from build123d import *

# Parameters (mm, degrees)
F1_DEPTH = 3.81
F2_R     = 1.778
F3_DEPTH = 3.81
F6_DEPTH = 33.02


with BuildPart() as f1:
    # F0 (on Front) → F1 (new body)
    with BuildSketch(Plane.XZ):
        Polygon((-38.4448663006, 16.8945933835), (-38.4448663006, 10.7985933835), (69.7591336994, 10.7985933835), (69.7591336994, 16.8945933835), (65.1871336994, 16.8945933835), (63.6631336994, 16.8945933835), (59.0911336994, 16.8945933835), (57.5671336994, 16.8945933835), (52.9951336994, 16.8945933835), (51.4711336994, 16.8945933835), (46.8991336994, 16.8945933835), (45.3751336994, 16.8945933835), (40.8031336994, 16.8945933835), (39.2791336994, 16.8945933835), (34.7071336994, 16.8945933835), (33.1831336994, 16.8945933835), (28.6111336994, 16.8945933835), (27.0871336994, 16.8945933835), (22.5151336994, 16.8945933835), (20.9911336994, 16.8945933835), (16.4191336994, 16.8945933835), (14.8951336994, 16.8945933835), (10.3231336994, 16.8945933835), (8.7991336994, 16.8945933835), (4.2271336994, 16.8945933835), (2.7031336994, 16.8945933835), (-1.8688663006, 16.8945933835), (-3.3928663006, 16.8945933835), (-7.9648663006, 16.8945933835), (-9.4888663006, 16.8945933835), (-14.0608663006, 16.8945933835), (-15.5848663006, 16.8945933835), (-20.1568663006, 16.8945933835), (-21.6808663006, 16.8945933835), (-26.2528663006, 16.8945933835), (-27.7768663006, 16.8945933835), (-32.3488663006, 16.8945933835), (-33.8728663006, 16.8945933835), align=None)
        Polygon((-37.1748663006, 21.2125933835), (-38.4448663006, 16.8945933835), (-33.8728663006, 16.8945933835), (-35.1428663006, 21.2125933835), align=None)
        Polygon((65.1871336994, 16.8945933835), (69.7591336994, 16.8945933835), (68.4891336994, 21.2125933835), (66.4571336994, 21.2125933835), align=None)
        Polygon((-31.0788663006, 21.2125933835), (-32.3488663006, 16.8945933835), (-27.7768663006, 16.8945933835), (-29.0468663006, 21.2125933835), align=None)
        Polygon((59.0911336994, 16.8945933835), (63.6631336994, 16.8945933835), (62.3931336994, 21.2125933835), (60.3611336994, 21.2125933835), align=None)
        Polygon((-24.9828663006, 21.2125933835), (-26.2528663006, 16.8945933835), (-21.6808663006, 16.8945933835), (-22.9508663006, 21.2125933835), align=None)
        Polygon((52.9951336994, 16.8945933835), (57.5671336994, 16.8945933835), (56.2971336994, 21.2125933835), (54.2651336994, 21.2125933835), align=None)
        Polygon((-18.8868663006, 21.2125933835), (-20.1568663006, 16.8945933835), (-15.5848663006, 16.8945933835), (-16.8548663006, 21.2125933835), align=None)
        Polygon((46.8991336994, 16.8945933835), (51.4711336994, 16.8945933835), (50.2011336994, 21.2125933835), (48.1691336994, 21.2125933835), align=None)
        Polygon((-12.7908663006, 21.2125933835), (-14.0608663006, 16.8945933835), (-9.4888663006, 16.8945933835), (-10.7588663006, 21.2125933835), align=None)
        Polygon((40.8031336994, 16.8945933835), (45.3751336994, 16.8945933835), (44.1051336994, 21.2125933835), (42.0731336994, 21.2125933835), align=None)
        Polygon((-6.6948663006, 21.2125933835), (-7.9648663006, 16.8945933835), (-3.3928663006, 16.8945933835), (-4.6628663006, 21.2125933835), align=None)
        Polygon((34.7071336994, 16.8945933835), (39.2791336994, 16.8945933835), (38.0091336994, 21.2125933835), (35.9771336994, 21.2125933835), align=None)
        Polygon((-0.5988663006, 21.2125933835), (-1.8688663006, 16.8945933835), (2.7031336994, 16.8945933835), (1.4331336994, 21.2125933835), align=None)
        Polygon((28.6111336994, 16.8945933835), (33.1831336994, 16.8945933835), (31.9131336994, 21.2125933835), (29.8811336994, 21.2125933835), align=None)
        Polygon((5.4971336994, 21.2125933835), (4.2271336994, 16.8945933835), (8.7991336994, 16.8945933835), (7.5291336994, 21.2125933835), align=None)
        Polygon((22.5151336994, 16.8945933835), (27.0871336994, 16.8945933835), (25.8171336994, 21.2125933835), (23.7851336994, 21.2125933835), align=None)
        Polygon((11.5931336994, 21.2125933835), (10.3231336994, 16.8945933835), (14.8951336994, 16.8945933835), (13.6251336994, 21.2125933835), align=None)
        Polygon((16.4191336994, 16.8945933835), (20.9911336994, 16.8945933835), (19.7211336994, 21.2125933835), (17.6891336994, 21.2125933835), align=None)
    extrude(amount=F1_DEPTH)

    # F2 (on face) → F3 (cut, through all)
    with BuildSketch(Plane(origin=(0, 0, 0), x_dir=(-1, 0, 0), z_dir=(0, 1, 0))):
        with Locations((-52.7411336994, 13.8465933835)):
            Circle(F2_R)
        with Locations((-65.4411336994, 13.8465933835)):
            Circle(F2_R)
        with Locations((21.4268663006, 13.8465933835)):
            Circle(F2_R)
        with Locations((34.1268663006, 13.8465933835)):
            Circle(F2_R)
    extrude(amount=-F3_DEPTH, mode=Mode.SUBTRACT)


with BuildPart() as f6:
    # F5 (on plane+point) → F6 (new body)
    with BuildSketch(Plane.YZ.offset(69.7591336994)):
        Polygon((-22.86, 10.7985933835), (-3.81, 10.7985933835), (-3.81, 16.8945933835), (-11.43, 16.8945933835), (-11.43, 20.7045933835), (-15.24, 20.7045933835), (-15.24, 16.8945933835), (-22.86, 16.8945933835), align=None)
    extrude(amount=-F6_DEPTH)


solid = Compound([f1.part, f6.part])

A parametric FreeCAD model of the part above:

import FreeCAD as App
import Part
import Sketcher

V = App.Vector
Q = App.Units.Quantity

doc = App.newDocument("Part")
params = doc.addObject("Spreadsheet::Sheet", "Params")
for row, (alias, value) in enumerate([
    ("sketch1_width", "4.26 in"),
    ("sketch1_width2", "0.08 in"),
    ("sketch1_width3", "0.06 in"),
    ("sketch1_height", "0.24 in"),
    ("pad1_length", "0.15 in"),
    ("sketch2_diameter", "0.14 in"),
    ("sketch3_width", "0.3 in"),
    ("sketch3_width2", "0.75 in"),
    ("sketch3_height", "0.24 in"),
    ("pad2_length", "1.3 in"),
], start=1):
    params.set(f"A{row}", alias)
    params.set(f"B{row}", "=" + value)
    params.setAlias(f"B{row}", alias)

body = doc.addObject("PartDesign::Body", "Body")

# Sketch on XZ plane
sketch1 = body.newObject("Sketcher::SketchObject", "Sketch")
sketch1.AttachmentSupport = (doc.getObject("XZ_Plane"), [""])
sketch1.MapMode = "FlatFace"
sketch1.addGeometry([
    Part.LineSegment(V(-38.444866, 16.894593, 0), V(-38.444866, 10.798593, 0)),  # 0
    Part.LineSegment(V(-38.444866, 10.798593, 0), V(69.759134, 10.798593, 0)),  # 1
    Part.LineSegment(V(69.759134, 10.798593, 0), V(69.759134, 16.894593, 0)),  # 2
    Part.LineSegment(V(69.759134, 16.894593, 0), V(68.489134, 21.212593, 0)),  # 3
    Part.LineSegment(V(68.489134, 21.212593, 0), V(66.457134, 21.212593, 0)),  # 4
    Part.LineSegment(V(66.457134, 21.212593, 0), V(65.187134, 16.894593, 0)),  # 5
    Part.LineSegment(V(65.187134, 16.894593, 0), V(63.663134, 16.894593, 0)),  # 6
    Part.LineSegment(V(63.663134, 16.894593, 0), V(62.393134, 21.212593, 0)),  # 7
    Part.LineSegment(V(62.393134, 21.212593, 0), V(60.361134, 21.212593, 0)),  # 8
    Part.LineSegment(V(60.361134, 21.212593, 0), V(59.091134, 16.894593, 0)),  # 9
    Part.LineSegment(V(59.091134, 16.894593, 0), V(57.567134, 16.894593, 0)),  # 10
    Part.LineSegment(V(57.567134, 16.894593, 0), V(56.297134, 21.212593, 0)),  # 11
    Part.LineSegment(V(56.297134, 21.212593, 0), V(54.265134, 21.212593, 0)),  # 12
    Part.LineSegment(V(54.265134, 21.212593, 0), V(52.995134, 16.894593, 0)),  # 13
    Part.LineSegment(V(52.995134, 16.894593, 0), V(51.471134, 16.894593, 0)),  # 14
    Part.LineSegment(V(51.471134, 16.894593, 0), V(50.201134, 21.212593, 0)),  # 15
    Part.LineSegment(V(50.201134, 21.212593, 0), V(48.169134, 21.212593, 0)),  # 16
    Part.LineSegment(V(48.169134, 21.212593, 0), V(46.899134, 16.894593, 0)),  # 17
    Part.LineSegment(V(46.899134, 16.894593, 0), V(45.375134, 16.894593, 0)),  # 18
    Part.LineSegment(V(45.375134, 16.894593, 0), V(44.105134, 21.212593, 0)),  # 19
    Part.LineSegment(V(44.105134, 21.212593, 0), V(42.073134, 21.212593, 0)),  # 20
    Part.LineSegment(V(42.073134, 21.212593, 0), V(40.803134, 16.894593, 0)),  # 21
    Part.LineSegment(V(40.803134, 16.894593, 0), V(39.279134, 16.894593, 0)),  # 22
    Part.LineSegment(V(39.279134, 16.894593, 0), V(38.009134, 21.212593, 0)),  # 23
    Part.LineSegment(V(38.009134, 21.212593, 0), V(35.977134, 21.212593, 0)),  # 24
    Part.LineSegment(V(35.977134, 21.212593, 0), V(34.707134, 16.894593, 0)),  # 25
    Part.LineSegment(V(34.707134, 16.894593, 0), V(33.183134, 16.894593, 0)),  # 26
    Part.LineSegment(V(33.183134, 16.894593, 0), V(31.913134, 21.212593, 0)),  # 27
    Part.LineSegment(V(31.913134, 21.212593, 0), V(29.881134, 21.212593, 0)),  # 28
    Part.LineSegment(V(29.881134, 21.212593, 0), V(28.611134, 16.894593, 0)),  # 29
    Part.LineSegment(V(28.611134, 16.894593, 0), V(27.087134, 16.894593, 0)),  # 30
    Part.LineSegment(V(27.087134, 16.894593, 0), V(25.817134, 21.212593, 0)),  # 31
    Part.LineSegment(V(25.817134, 21.212593, 0), V(23.785134, 21.212593, 0)),  # 32
    Part.LineSegment(V(23.785134, 21.212593, 0), V(22.515134, 16.894593, 0)),  # 33
    Part.LineSegment(V(22.515134, 16.894593, 0), V(20.991134, 16.894593, 0)),  # 34
    Part.LineSegment(V(20.991134, 16.894593, 0), V(19.721134, 21.212593, 0)),  # 35
    Part.LineSegment(V(19.721134, 21.212593, 0), V(17.689134, 21.212593, 0)),  # 36
    Part.LineSegment(V(17.689134, 21.212593, 0), V(16.419134, 16.894593, 0)),  # 37
    Part.LineSegment(V(16.419134, 16.894593, 0), V(14.895134, 16.894593, 0)),  # 38
    Part.LineSegment(V(14.895134, 16.894593, 0), V(13.625134, 21.212593, 0)),  # 39
    Part.LineSegment(V(13.625134, 21.212593, 0), V(11.593134, 21.212593, 0)),  # 40
    Part.LineSegment(V(11.593134, 21.212593, 0), V(10.323134, 16.894593, 0)),  # 41
    Part.LineSegment(V(10.323134, 16.894593, 0), V(8.799134, 16.894593, 0)),  # 42
    Part.LineSegment(V(8.799134, 16.894593, 0), V(7.529134, 21.212593, 0)),  # 43
    Part.LineSegment(V(7.529134, 21.212593, 0), V(5.497134, 21.212593, 0)),  # 44
    Part.LineSegment(V(5.497134, 21.212593, 0), V(4.227134, 16.894593, 0)),  # 45
    Part.LineSegment(V(4.227134, 16.894593, 0), V(2.703134, 16.894593, 0)),  # 46
    Part.LineSegment(V(2.703134, 16.894593, 0), V(1.433134, 21.212593, 0)),  # 47
    Part.LineSegment(V(1.433134, 21.212593, 0), V(-0.598866, 21.212593, 0)),  # 48
    Part.LineSegment(V(-0.598866, 21.212593, 0), V(-1.868866, 16.894593, 0)),  # 49
    Part.LineSegment(V(-1.868866, 16.894593, 0), V(-3.392866, 16.894593, 0)),  # 50
    Part.LineSegment(V(-3.392866, 16.894593, 0), V(-4.662866, 21.212593, 0)),  # 51
    Part.LineSegment(V(-4.662866, 21.212593, 0), V(-6.694866, 21.212593, 0)),  # 52
    Part.LineSegment(V(-6.694866, 21.212593, 0), V(-7.964866, 16.894593, 0)),  # 53
    Part.LineSegment(V(-7.964866, 16.894593, 0), V(-9.488866, 16.894593, 0)),  # 54
    Part.LineSegment(V(-9.488866, 16.894593, 0), V(-10.758866, 21.212593, 0)),  # 55
    Part.LineSegment(V(-10.758866, 21.212593, 0), V(-12.790866, 21.212593, 0)),  # 56
    Part.LineSegment(V(-12.790866, 21.212593, 0), V(-14.060866, 16.894593, 0)),  # 57
    Part.LineSegment(V(-14.060866, 16.894593, 0), V(-15.584866, 16.894593, 0)),  # 58
    Part.LineSegment(V(-15.584866, 16.894593, 0), V(-16.854866, 21.212593, 0)),  # 59
    Part.LineSegment(V(-16.854866, 21.212593, 0), V(-18.886866, 21.212593, 0)),  # 60
    Part.LineSegment(V(-18.886866, 21.212593, 0), V(-20.156866, 16.894593, 0)),  # 61
    Part.LineSegment(V(-20.156866, 16.894593, 0), V(-21.680866, 16.894593, 0)),  # 62
    Part.LineSegment(V(-21.680866, 16.894593, 0), V(-22.950866, 21.212593, 0)),  # 63
    Part.LineSegment(V(-22.950866, 21.212593, 0), V(-24.982866, 21.212593, 0)),  # 64
    Part.LineSegment(V(-24.982866, 21.212593, 0), V(-26.252866, 16.894593, 0)),  # 65
    Part.LineSegment(V(-26.252866, 16.894593, 0), V(-27.776866, 16.894593, 0)),  # 66
    Part.LineSegment(V(-27.776866, 16.894593, 0), V(-29.046866, 21.212593, 0)),  # 67
    Part.LineSegment(V(-29.046866, 21.212593, 0), V(-31.078866, 21.212593, 0)),  # 68
    Part.LineSegment(V(-31.078866, 21.212593, 0), V(-32.348866, 16.894593, 0)),  # 69
    Part.LineSegment(V(-32.348866, 16.894593, 0), V(-33.872866, 16.894593, 0)),  # 70
    Part.LineSegment(V(-33.872866, 16.894593, 0), V(-35.142866, 21.212593, 0)),  # 71
    Part.LineSegment(V(-35.142866, 21.212593, 0), V(-37.174866, 21.212593, 0)),  # 72
    Part.LineSegment(V(-37.174866, 21.212593, 0), V(-38.444866, 16.894593, 0)),  # 73
], False)
sketch1.addConstraint([
    Sketcher.Constraint("Coincident", 0, 2, 1, 1),
    Sketcher.Constraint("Coincident", 1, 2, 2, 1),
    Sketcher.Constraint("Coincident", 2, 2, 3, 1),
    Sketcher.Constraint("Coincident", 3, 2, 4, 1),
    Sketcher.Constraint("Coincident", 4, 2, 5, 1),
    Sketcher.Constraint("Coincident", 5, 2, 6, 1),
    Sketcher.Constraint("Coincident", 6, 2, 7, 1),
    Sketcher.Constraint("Coincident", 7, 2, 8, 1),
    Sketcher.Constraint("Coincident", 8, 2, 9, 1),
    Sketcher.Constraint("Coincident", 9, 2, 10, 1),
    Sketcher.Constraint("Coincident", 10, 2, 11, 1),
    Sketcher.Constraint("Coincident", 11, 2, 12, 1),
    Sketcher.Constraint("Coincident", 12, 2, 13, 1),
    Sketcher.Constraint("Coincident", 13, 2, 14, 1),
    Sketcher.Constraint("Coincident", 14, 2, 15, 1),
    Sketcher.Constraint("Coincident", 15, 2, 16, 1),
    Sketcher.Constraint("Coincident", 16, 2, 17, 1),
    Sketcher.Constraint("Coincident", 17, 2, 18, 1),
    Sketcher.Constraint("Coincident", 18, 2, 19, 1),
    Sketcher.Constraint("Coincident", 19, 2, 20, 1),
    Sketcher.Constraint("Coincident", 20, 2, 21, 1),
    Sketcher.Constraint("Coincident", 21, 2, 22, 1),
    Sketcher.Constraint("Coincident", 22, 2, 23, 1),
    Sketcher.Constraint("Coincident", 23, 2, 24, 1),
    Sketcher.Constraint("Coincident", 24, 2, 25, 1),
    Sketcher.Constraint("Coincident", 25, 2, 26, 1),
    Sketcher.Constraint("Coincident", 26, 2, 27, 1),
    Sketcher.Constraint("Coincident", 27, 2, 28, 1),
    Sketcher.Constraint("Coincident", 28, 2, 29, 1),
    Sketcher.Constraint("Coincident", 29, 2, 30, 1),
    Sketcher.Constraint("Coincident", 30, 2, 31, 1),
    Sketcher.Constraint("Coincident", 31, 2, 32, 1),
    Sketcher.Constraint("Coincident", 32, 2, 33, 1),
    Sketcher.Constraint("Coincident", 33, 2, 34, 1),
    Sketcher.Constraint("Coincident", 34, 2, 35, 1),
    Sketcher.Constraint("Coincident", 35, 2, 36, 1),
    Sketcher.Constraint("Coincident", 36, 2, 37, 1),
    Sketcher.Constraint("Coincident", 37, 2, 38, 1),
    Sketcher.Constraint("Coincident", 38, 2, 39, 1),
    Sketcher.Constraint("Coincident", 39, 2, 40, 1),
    Sketcher.Constraint("Coincident", 40, 2, 41, 1),
    Sketcher.Constraint("Coincident", 41, 2, 42, 1),
    Sketcher.Constraint("Coincident", 42, 2, 43, 1),
    Sketcher.Constraint("Coincident", 43, 2, 44, 1),
    Sketcher.Constraint("Coincident", 44, 2, 45, 1),
    Sketcher.Constraint("Coincident", 45, 2, 46, 1),
    Sketcher.Constraint("Coincident", 46, 2, 47, 1),
    Sketcher.Constraint("Coincident", 47, 2, 48, 1),
    Sketcher.Constraint("Coincident", 48, 2, 49, 1),
    Sketcher.Constraint("Coincident", 49, 2, 50, 1),
    Sketcher.Constraint("Coincident", 50, 2, 51, 1),
    Sketcher.Constraint("Coincident", 51, 2, 52, 1),
    Sketcher.Constraint("Coincident", 52, 2, 53, 1),
    Sketcher.Constraint("Coincident", 53, 2, 54, 1),
    Sketcher.Constraint("Coincident", 54, 2, 55, 1),
    Sketcher.Constraint("Coincident", 55, 2, 56, 1),
    Sketcher.Constraint("Coincident", 56, 2, 57, 1),
    Sketcher.Constraint("Coincident", 57, 2, 58, 1),
    Sketcher.Constraint("Coincident", 58, 2, 59, 1),
    Sketcher.Constraint("Coincident", 59, 2, 60, 1),
    Sketcher.Constraint("Coincident", 60, 2, 61, 1),
    Sketcher.Constraint("Coincident", 61, 2, 62, 1),
    Sketcher.Constraint("Coincident", 62, 2, 63, 1),
    Sketcher.Constraint("Coincident", 63, 2, 64, 1),
    Sketcher.Constraint("Coincident", 64, 2, 65, 1),
    Sketcher.Constraint("Coincident", 65, 2, 66, 1),
    Sketcher.Constraint("Coincident", 66, 2, 67, 1),
    Sketcher.Constraint("Coincident", 67, 2, 68, 1),
    Sketcher.Constraint("Coincident", 68, 2, 69, 1),
    Sketcher.Constraint("Coincident", 69, 2, 70, 1),
    Sketcher.Constraint("Coincident", 70, 2, 71, 1),
    Sketcher.Constraint("Coincident", 71, 2, 72, 1),
    Sketcher.Constraint("Coincident", 72, 2, 73, 1),
    Sketcher.Constraint("Coincident", 73, 2, 0, 1),
    Sketcher.Constraint("Vertical", 0),
    Sketcher.Constraint("Horizontal", 1),
    Sketcher.Constraint("Vertical", 2),
    Sketcher.Constraint("Horizontal", 4),
    Sketcher.Constraint("Horizontal", 6),
    Sketcher.Constraint("Horizontal", 8),
    Sketcher.Constraint("Horizontal", 10),
    Sketcher.Constraint("Horizontal", 12),
    Sketcher.Constraint("Horizontal", 14),
    Sketcher.Constraint("Horizontal", 16),
    Sketcher.Constraint("Horizontal", 18),
    Sketcher.Constraint("Horizontal", 20),
    Sketcher.Constraint("Horizontal", 22),
    Sketcher.Constraint("Horizontal", 24),
    Sketcher.Constraint("Horizontal", 26),
    Sketcher.Constraint("Horizontal", 28),
    Sketcher.Constraint("Horizontal", 30),
    Sketcher.Constraint("Horizontal", 32),
    Sketcher.Constraint("Horizontal", 34),
    Sketcher.Constraint("Horizontal", 36),
    Sketcher.Constraint("Horizontal", 38),
    Sketcher.Constraint("Horizontal", 40),
    Sketcher.Constraint("Horizontal", 42),
    Sketcher.Constraint("Horizontal", 44),
    Sketcher.Constraint("Horizontal", 46),
    Sketcher.Constraint("Horizontal", 48),
    Sketcher.Constraint("Horizontal", 50),
    Sketcher.Constraint("Horizontal", 52),
    Sketcher.Constraint("Horizontal", 54),
    Sketcher.Constraint("Horizontal", 56),
    Sketcher.Constraint("Horizontal", 58),
    Sketcher.Constraint("Horizontal", 60),
    Sketcher.Constraint("Horizontal", 62),
    Sketcher.Constraint("Horizontal", 64),
    Sketcher.Constraint("Horizontal", 66),
    Sketcher.Constraint("Horizontal", 68),
    Sketcher.Constraint("Horizontal", 70),
    Sketcher.Constraint("Horizontal", 72),
    Sketcher.Constraint("Parallel", 3, 7),
    Sketcher.Constraint("Parallel", 5, 9),
    Sketcher.Constraint("Parallel", 7, 11),
    Sketcher.Constraint("Parallel", 9, 13),
    Sketcher.Constraint("Parallel", 11, 15),
    Sketcher.Constraint("Parallel", 13, 17),
    Sketcher.Constraint("Parallel", 15, 19),
    Sketcher.Constraint("Parallel", 17, 21),
    Sketcher.Constraint("Parallel", 19, 23),
    Sketcher.Constraint("Parallel", 21, 25),
    Sketcher.Constraint("Parallel", 23, 27),
    Sketcher.Constraint("Parallel", 25, 29),
    Sketcher.Constraint("Parallel", 27, 31),
    Sketcher.Constraint("Parallel", 29, 33),
    Sketcher.Constraint("Parallel", 31, 35),
    Sketcher.Constraint("Parallel", 33, 37),
    Sketcher.Constraint("Parallel", 35, 39),
    Sketcher.Constraint("Parallel", 37, 41),
    Sketcher.Constraint("Parallel", 39, 43),
    Sketcher.Constraint("Parallel", 41, 45),
    Sketcher.Constraint("Parallel", 43, 47),
    Sketcher.Constraint("Parallel", 45, 49),
    Sketcher.Constraint("Parallel", 47, 51),
    Sketcher.Constraint("Parallel", 49, 53),
    Sketcher.Constraint("Parallel", 51, 55),
    Sketcher.Constraint("Parallel", 53, 57),
    Sketcher.Constraint("Parallel", 55, 59),
    Sketcher.Constraint("Parallel", 57, 61),
    Sketcher.Constraint("Parallel", 59, 63),
    Sketcher.Constraint("Parallel", 61, 65),
    Sketcher.Constraint("Parallel", 63, 67),
    Sketcher.Constraint("Parallel", 65, 69),
    Sketcher.Constraint("Parallel", 67, 71),
    Sketcher.Constraint("Parallel", 69, 73),
    Sketcher.Constraint("Horizontal", 2, 2, 5, 2),
    Sketcher.Constraint("Horizontal", 4, 2, 7, 2),
    Sketcher.Constraint("Horizontal", 6, 2, 9, 2),
    Sketcher.Constraint("Horizontal", 8, 2, 11, 2),
    Sketcher.Constraint("Horizontal", 10, 2, 13, 2),
    Sketcher.Constraint("Horizontal", 12, 2, 15, 2),
    Sketcher.Constraint("Horizontal", 14, 2, 17, 2),
    Sketcher.Constraint("Horizontal", 16, 2, 19, 2),
    Sketcher.Constraint("Horizontal", 18, 2, 21, 2),
    Sketcher.Constraint("Horizontal", 20, 2, 23, 2),
    Sketcher.Constraint("Horizontal", 22, 2, 25, 2),
    Sketcher.Constraint("Horizontal", 24, 2, 27, 2),
    Sketcher.Constraint("Horizontal", 26, 2, 29, 2),
    Sketcher.Constraint("Horizontal", 28, 2, 31, 2),
    Sketcher.Constraint("Horizontal", 30, 2, 33, 2),
    Sketcher.Constraint("Horizontal", 32, 2, 35, 2),
    Sketcher.Constraint("Horizontal", 34, 2, 37, 2),
    Sketcher.Constraint("Horizontal", 36, 2, 39, 2),
    Sketcher.Constraint("Horizontal", 38, 2, 41, 2),
    Sketcher.Constraint("Horizontal", 40, 2, 43, 2),
    Sketcher.Constraint("Horizontal", 42, 2, 45, 2),
    Sketcher.Constraint("Horizontal", 44, 2, 47, 2),
    Sketcher.Constraint("Horizontal", 46, 2, 49, 2),
    Sketcher.Constraint("Horizontal", 48, 2, 51, 2),
    Sketcher.Constraint("Horizontal", 50, 2, 53, 2),
    Sketcher.Constraint("Horizontal", 52, 2, 55, 2),
    Sketcher.Constraint("Horizontal", 54, 2, 57, 2),
    Sketcher.Constraint("Horizontal", 56, 2, 59, 2),
    Sketcher.Constraint("Horizontal", 58, 2, 61, 2),
    Sketcher.Constraint("Horizontal", 60, 2, 63, 2),
    Sketcher.Constraint("Horizontal", 62, 2, 65, 2),
    Sketcher.Constraint("Horizontal", 64, 2, 67, 2),
    Sketcher.Constraint("Horizontal", 66, 2, 69, 2),
    Sketcher.Constraint("Horizontal", 68, 2, 71, 2),
    Sketcher.Constraint("Horizontal", 70, 2, 73, 2),
    Sketcher.Constraint("Equal", 4, 8),
    Sketcher.Constraint("Equal", 6, 10),
    Sketcher.Constraint("Equal", 8, 12),
    Sketcher.Constraint("Equal", 10, 14),
    Sketcher.Constraint("Equal", 12, 16),
    Sketcher.Constraint("Equal", 14, 18),
    Sketcher.Constraint("Equal", 16, 20),
    Sketcher.Constraint("Equal", 18, 22),
    Sketcher.Constraint("Equal", 20, 24),
    Sketcher.Constraint("Equal", 22, 26),
    Sketcher.Constraint("Equal", 24, 28),
    Sketcher.Constraint("Equal", 26, 30),
    Sketcher.Constraint("Equal", 28, 32),
    Sketcher.Constraint("Equal", 30, 34),
    Sketcher.Constraint("Equal", 32, 36),
    Sketcher.Constraint("Equal", 34, 38),
    Sketcher.Constraint("Equal", 36, 40),
    Sketcher.Constraint("Equal", 38, 42),
    Sketcher.Constraint("Equal", 40, 44),
    Sketcher.Constraint("Equal", 42, 46),
    Sketcher.Constraint("Equal", 44, 48),
    Sketcher.Constraint("Equal", 46, 50),
    Sketcher.Constraint("Equal", 48, 52),
    Sketcher.Constraint("Equal", 50, 54),
    Sketcher.Constraint("Equal", 52, 56),
    Sketcher.Constraint("Equal", 54, 58),
    Sketcher.Constraint("Equal", 56, 60),
    Sketcher.Constraint("Equal", 58, 62),
    Sketcher.Constraint("Equal", 60, 64),
    Sketcher.Constraint("Equal", 62, 66),
    Sketcher.Constraint("Equal", 64, 68),
    Sketcher.Constraint("Equal", 66, 70),
    Sketcher.Constraint("Equal", 68, 72),
    Sketcher.Constraint("Equal", 3, 5),
    Sketcher.Constraint("DistanceX", 1, 1, 1, 2, Q("4.26 in")),
    Sketcher.Constraint("DistanceX", 4, 2, 4, 1, Q("0.08 in")),
    Sketcher.Constraint("DistanceX", 6, 2, 6, 1, Q("0.06 in")),
    Sketcher.Constraint("DistanceY", 0, 2, 0, 1, Q("0.24 in")),
    Sketcher.Constraint("Distance", 3, Q("4.500891 mm")),
    Sketcher.Constraint("DistanceX", 0, 2, -1, 1, Q("38.444866 mm")),
    Sketcher.Constraint("DistanceY", -1, 1, 0, 2, Q("10.798593 mm")),
])
sketch1.setExpression("Constraints[215]", "Params.sketch1_width")
sketch1.setExpression("Constraints[216]", "Params.sketch1_width2")
sketch1.setExpression("Constraints[217]", "Params.sketch1_width3")
sketch1.setExpression("Constraints[218]", "Params.sketch1_height")
pad1 = body.newObject("PartDesign::Pad", "Pad")
pad1.Profile = sketch1
pad1.setExpression("Length", "Params.pad1_length")

# Sketch on XZ plane
sketch2 = body.newObject("Sketcher::SketchObject", "Sketch001")
sketch2.AttachmentSupport = (doc.getObject("XZ_Plane"), [""])
sketch2.MapMode = "FlatFace"
sketch2.addGeometry([
    Part.Circle(V(52.741134, 13.846593, 0), V(0, 0, 1), 1.778),
    Part.Circle(V(65.441134, 13.846593, 0), V(0, 0, 1), 1.778),
    Part.Circle(V(-21.426866, 13.846593, 0), V(0, 0, 1), 1.778),
    Part.Circle(V(-34.126866, 13.846593, 0), V(0, 0, 1), 1.778),
], False)
sketch2.addConstraint([
    Sketcher.Constraint("Equal", 0, 1),
    Sketcher.Constraint("Equal", 1, 2),
    Sketcher.Constraint("Equal", 2, 3),
    Sketcher.Constraint("Horizontal", 0, 3, 1, 3),
    Sketcher.Constraint("Horizontal", 1, 3, 2, 3),
    Sketcher.Constraint("Horizontal", 2, 3, 3, 3),
    Sketcher.Constraint("Diameter", 0, Q("0.14 in")),
    Sketcher.Constraint("DistanceX", 0, 3, 1, 3, Q("0.5 in")),
    Sketcher.Constraint("DistanceX", 3, 3, 2, 3, Q("0.5 in")),
    Sketcher.Constraint("DistanceX", 2, 3, 0, 3, Q("2.92 in")),
    Sketcher.Constraint("DistanceX", -1, 1, 0, 3, Q("52.741134 mm")),
    Sketcher.Constraint("DistanceY", -1, 1, 0, 3, Q("13.846593 mm")),
])
sketch2.setExpression("Constraints[6]", "Params.sketch2_diameter")
pocket1 = body.newObject("PartDesign::Pocket", "Pocket")
pocket1.Profile = sketch2
pocket1.Type = "ThroughAll"
pocket1.Reversed = True
body2 = doc.addObject("PartDesign::Body", "Body001")

# Sketch on YZ plane
sketch3 = body2.newObject("Sketcher::SketchObject", "Sketch002")
sketch3.AttachmentSupport = (doc.getObject("YZ_Plane001"), [""])
sketch3.MapMode = "FlatFace"
sketch3.AttachmentOffset = App.Placement(V(0, 0, 69.759134), App.Rotation())
sketch3.addGeometry([
    Part.LineSegment(V(-22.86, 10.798593, 0), V(-3.81, 10.798593, 0)),  # 0
    Part.LineSegment(V(-3.81, 10.798593, 0), V(-3.81, 16.894593, 0)),  # 1
    Part.LineSegment(V(-3.81, 16.894593, 0), V(-11.43, 16.894593, 0)),  # 2
    Part.LineSegment(V(-11.43, 16.894593, 0), V(-11.43, 20.704593, 0)),  # 3
    Part.LineSegment(V(-11.43, 20.704593, 0), V(-15.24, 20.704593, 0)),  # 4
    Part.LineSegment(V(-15.24, 20.704593, 0), V(-15.24, 16.894593, 0)),  # 5
    Part.LineSegment(V(-15.24, 16.894593, 0), V(-22.86, 16.894593, 0)),  # 6
    Part.LineSegment(V(-22.86, 16.894593, 0), V(-22.86, 10.798593, 0)),  # 7
], False)
sketch3.addConstraint([
    Sketcher.Constraint("Coincident", 0, 2, 1, 1),
    Sketcher.Constraint("Coincident", 1, 2, 2, 1),
    Sketcher.Constraint("Coincident", 2, 2, 3, 1),
    Sketcher.Constraint("Coincident", 3, 2, 4, 1),
    Sketcher.Constraint("Coincident", 4, 2, 5, 1),
    Sketcher.Constraint("Coincident", 5, 2, 6, 1),
    Sketcher.Constraint("Coincident", 6, 2, 7, 1),
    Sketcher.Constraint("Coincident", 7, 2, 0, 1),
    Sketcher.Constraint("Horizontal", 0),
    Sketcher.Constraint("Vertical", 1),
    Sketcher.Constraint("Horizontal", 2),
    Sketcher.Constraint("Vertical", 3),
    Sketcher.Constraint("Horizontal", 4),
    Sketcher.Constraint("Vertical", 5),
    Sketcher.Constraint("Horizontal", 6),
    Sketcher.Constraint("Vertical", 7),
    Sketcher.Constraint("Horizontal", 2, 2, 5, 2),
    Sketcher.Constraint("Equal", 2, 6),
    Sketcher.Constraint("Equal", 4, 3),
    Sketcher.Constraint("DistanceX", 2, 2, 2, 1, Q("0.3 in")),
    Sketcher.Constraint("DistanceX", 0, 1, 0, 2, Q("0.75 in")),
    Sketcher.Constraint("DistanceY", 1, 1, 1, 2, Q("0.24 in")),
    Sketcher.Constraint("DistanceX", 4, 2, -1, 1, Q("0.6 in")),
    Sketcher.Constraint("DistanceY", -1, 1, 0, 2, Q("10.798593 mm")),
])
sketch3.setExpression("Constraints[19]", "Params.sketch3_width")
sketch3.setExpression("Constraints[20]", "Params.sketch3_width2")
sketch3.setExpression("Constraints[21]", "Params.sketch3_height")
pad2 = body2.newObject("PartDesign::Pad", "Pad001")
pad2.Profile = sketch3
pad2.setExpression("Length", "Params.pad2_length")
pad2.Reversed = True

doc.recompute()
